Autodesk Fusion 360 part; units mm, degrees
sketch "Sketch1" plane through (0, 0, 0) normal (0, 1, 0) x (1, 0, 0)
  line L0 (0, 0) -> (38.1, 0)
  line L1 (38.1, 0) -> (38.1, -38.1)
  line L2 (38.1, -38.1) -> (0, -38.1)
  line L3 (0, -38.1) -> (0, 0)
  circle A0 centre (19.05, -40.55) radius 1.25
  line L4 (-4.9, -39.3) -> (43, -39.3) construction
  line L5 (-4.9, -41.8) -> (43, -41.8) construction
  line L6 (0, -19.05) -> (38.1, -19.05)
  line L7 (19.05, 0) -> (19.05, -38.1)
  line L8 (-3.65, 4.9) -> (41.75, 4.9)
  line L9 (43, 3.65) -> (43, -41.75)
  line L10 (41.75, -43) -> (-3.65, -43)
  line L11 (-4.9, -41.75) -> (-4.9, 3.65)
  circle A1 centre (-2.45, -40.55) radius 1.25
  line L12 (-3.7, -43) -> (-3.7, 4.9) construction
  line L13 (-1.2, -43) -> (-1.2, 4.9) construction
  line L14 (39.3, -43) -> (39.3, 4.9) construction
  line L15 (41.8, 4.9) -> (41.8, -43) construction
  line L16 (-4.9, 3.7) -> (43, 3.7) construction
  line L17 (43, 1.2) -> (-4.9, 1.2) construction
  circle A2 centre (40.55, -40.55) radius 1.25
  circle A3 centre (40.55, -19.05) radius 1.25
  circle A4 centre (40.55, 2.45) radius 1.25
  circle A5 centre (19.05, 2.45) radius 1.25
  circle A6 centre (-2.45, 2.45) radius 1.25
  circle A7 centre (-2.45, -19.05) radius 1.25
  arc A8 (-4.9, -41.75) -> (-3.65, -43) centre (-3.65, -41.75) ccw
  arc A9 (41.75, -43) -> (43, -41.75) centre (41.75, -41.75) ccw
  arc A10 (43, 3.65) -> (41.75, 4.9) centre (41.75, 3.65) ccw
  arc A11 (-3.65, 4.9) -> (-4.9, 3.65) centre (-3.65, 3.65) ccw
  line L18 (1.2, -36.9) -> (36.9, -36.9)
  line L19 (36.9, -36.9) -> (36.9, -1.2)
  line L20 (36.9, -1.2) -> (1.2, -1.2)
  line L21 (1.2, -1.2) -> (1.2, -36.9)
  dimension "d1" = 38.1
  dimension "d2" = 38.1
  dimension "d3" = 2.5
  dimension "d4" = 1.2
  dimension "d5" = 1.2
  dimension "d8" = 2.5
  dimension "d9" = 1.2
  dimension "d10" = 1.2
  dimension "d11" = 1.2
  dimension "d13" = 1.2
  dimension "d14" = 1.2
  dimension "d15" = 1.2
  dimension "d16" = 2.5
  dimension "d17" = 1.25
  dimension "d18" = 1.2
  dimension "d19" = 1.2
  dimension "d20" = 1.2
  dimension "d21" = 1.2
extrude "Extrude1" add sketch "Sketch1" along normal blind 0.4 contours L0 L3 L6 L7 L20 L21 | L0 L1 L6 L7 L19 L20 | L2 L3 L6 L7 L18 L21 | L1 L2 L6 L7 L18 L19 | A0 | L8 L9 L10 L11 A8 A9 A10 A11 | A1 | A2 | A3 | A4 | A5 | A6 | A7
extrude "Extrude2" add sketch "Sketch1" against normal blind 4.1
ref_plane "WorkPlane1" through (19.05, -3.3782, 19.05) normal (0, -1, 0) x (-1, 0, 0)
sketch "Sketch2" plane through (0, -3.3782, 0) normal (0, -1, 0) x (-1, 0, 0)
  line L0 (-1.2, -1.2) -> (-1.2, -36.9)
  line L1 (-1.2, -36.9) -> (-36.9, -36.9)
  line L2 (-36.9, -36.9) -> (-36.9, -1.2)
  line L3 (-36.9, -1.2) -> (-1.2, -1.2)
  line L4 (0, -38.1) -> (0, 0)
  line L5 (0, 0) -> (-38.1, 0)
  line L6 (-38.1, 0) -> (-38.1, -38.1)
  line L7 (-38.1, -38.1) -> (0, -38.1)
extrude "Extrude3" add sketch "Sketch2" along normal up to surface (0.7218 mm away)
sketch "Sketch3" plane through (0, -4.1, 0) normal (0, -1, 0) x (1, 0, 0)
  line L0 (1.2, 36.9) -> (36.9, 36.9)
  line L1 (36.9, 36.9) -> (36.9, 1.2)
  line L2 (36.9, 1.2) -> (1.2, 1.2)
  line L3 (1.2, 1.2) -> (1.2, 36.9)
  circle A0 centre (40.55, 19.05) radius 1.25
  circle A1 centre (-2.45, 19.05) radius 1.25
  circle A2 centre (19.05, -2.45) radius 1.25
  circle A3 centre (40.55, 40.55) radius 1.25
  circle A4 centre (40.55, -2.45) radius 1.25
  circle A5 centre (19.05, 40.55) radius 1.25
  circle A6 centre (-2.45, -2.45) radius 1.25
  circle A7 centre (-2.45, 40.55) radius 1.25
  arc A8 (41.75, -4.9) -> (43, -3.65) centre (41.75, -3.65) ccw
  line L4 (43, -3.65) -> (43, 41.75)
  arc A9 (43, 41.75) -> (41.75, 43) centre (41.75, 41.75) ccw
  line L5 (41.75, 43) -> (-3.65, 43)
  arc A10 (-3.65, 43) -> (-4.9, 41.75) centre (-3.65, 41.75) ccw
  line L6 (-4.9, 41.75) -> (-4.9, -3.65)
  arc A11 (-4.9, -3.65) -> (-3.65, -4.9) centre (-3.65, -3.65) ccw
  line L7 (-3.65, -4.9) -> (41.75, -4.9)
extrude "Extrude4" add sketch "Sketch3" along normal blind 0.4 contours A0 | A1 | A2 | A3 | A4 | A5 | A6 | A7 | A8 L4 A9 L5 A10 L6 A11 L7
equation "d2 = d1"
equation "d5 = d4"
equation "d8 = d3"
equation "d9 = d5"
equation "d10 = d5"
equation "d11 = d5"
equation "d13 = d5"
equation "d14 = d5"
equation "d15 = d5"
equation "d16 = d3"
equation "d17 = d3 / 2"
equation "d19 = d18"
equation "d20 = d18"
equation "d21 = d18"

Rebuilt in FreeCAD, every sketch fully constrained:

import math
import FreeCAD as App
import Part
import Sketcher
from FreeCAD import Vector
Q = App.Units.Quantity

doc = App.newDocument("Part")
body = doc.addObject("PartDesign::Body", "Body")

sketch1 = body.newObject("Sketcher::SketchObject", "Sketch")
sketch1.AttachmentSupport = (doc.getObject("XZ_Plane"), [""])
sketch1.MapMode = "FlatFace"
sketch1.addGeometry([
    Part.LineSegment(Vector(41.75, -4.9, 0), Vector(-3.65, -4.9, 0)),
    Part.ArcOfCircle(Part.Circle(Vector(-3.65, -3.65, 0), Vector(0, 0, 1), 1.25), math.radians(180), math.radians(270)),
    Part.LineSegment(Vector(-4.9, -3.65, 0), Vector(-4.9, 41.75, 0)),
    Part.ArcOfCircle(Part.Circle(Vector(-3.65, 41.75, 0), Vector(0, 0, 1), 1.25), math.radians(90), math.radians(180)),
    Part.LineSegment(Vector(-3.65, 43, 0), Vector(41.75, 43, 0)),
    Part.ArcOfCircle(Part.Circle(Vector(41.75, 41.75, 0), Vector(0, 0, 1), 1.25), math.radians(0), math.radians(90)),
    Part.LineSegment(Vector(43, 41.75, 0), Vector(43, -3.65, 0)),
    Part.ArcOfCircle(Part.Circle(Vector(41.75, -3.65, 0), Vector(0, 0, 1), 1.25), math.radians(-90), math.radians(0)),
    Part.LineSegment(Vector(1.2, 1.2, 0), Vector(36.9, 1.2, 0)),
    Part.LineSegment(Vector(36.9, 1.2, 0), Vector(36.9, 36.9, 0)),
    Part.LineSegment(Vector(36.9, 36.9, 0), Vector(1.2, 36.9, 0)),
    Part.LineSegment(Vector(1.2, 36.9, 0), Vector(1.2, 1.2, 0)),
], False)
sketch1.addConstraint([
    Sketcher.Constraint("Tangent", 0, 2, 1, 2),
    Sketcher.Constraint("Tangent", 1, 1, 2, 1),
    Sketcher.Constraint("Tangent", 2, 2, 3, 2),
    Sketcher.Constraint("Tangent", 3, 1, 4, 1),
    Sketcher.Constraint("Tangent", 4, 2, 5, 2),
    Sketcher.Constraint("Tangent", 5, 1, 6, 1),
    Sketcher.Constraint("Tangent", 6, 2, 7, 2),
    Sketcher.Constraint("Tangent", 7, 1, 0, 1),
    Sketcher.Constraint("Coincident", 8, 2, 9, 1),
    Sketcher.Constraint("Coincident", 9, 2, 10, 1),
    Sketcher.Constraint("Coincident", 10, 2, 11, 1),
    Sketcher.Constraint("Coincident", 11, 2, 8, 1),
    Sketcher.Constraint("Horizontal", 0),
    Sketcher.Constraint("Vertical", 2),
    Sketcher.Constraint("Horizontal", 4),
    Sketcher.Constraint("Vertical", 6),
    Sketcher.Constraint("Horizontal", 8),
    Sketcher.Constraint("Vertical", 9),
    Sketcher.Constraint("Horizontal", 10),
    Sketcher.Constraint("Vertical", 11),
    Sketcher.Constraint("Equal", 1, 3),
    Sketcher.Constraint("Equal", 3, 5),
    Sketcher.Constraint("Equal", 5, 7),
    Sketcher.Constraint("Equal", 4, 2),
    Sketcher.Constraint("Equal", 10, 9),
    Sketcher.Constraint("Radius", 1, Q("1.25 mm")),
    Sketcher.Constraint("DistanceY", -1, 1, 8, 2, Q("1.2 mm")),
    Sketcher.Constraint("DistanceX", -1, 1, 10, 2, Q("1.2 mm")),
    Sketcher.Constraint("DistanceX", 0, 2, 0, 1, Q("45.4 mm")),
    Sketcher.Constraint("DistanceX", 8, 1, 8, 2, Q("35.7 mm")),
    Sketcher.Constraint("DistanceY", -1, 1, 3, 1, Q("43 mm")),
    Sketcher.Constraint("DistanceX", -1, 1, 5, 1, Q("43 mm")),
])
pad1 = body.newObject("PartDesign::Pad", "Pad")
pad1.Profile = sketch1
pad1.Length = 0.4
pad1.Reversed = True

sketch2 = body.newObject("Sketcher::SketchObject", "Sketch001")
sketch2.AttachmentSupport = (doc.getObject("XZ_Plane"), [""])
sketch2.MapMode = "FlatFace"
sketch2.addGeometry([
    Part.LineSegment(Vector(41.75, -4.9, 0), Vector(-3.65, -4.9, 0)),
    Part.ArcOfCircle(Part.Circle(Vector(-3.65, -3.65, 0), Vector(0, 0, 1), 1.25), math.radians(180), math.radians(270)),
    Part.LineSegment(Vector(-4.9, -3.65, 0), Vector(-4.9, 41.75, 0)),
    Part.ArcOfCircle(Part.Circle(Vector(-3.65, 41.75, 0), Vector(0, 0, 1), 1.25), math.radians(90), math.radians(180)),
    Part.LineSegment(Vector(-3.65, 43, 0), Vector(41.75, 43, 0)),
    Part.ArcOfCircle(Part.Circle(Vector(41.75, 41.75, 0), Vector(0, 0, 1), 1.25), math.radians(0), math.radians(90)),
    Part.LineSegment(Vector(43, 41.75, 0), Vector(43, -3.65, 0)),
    Part.ArcOfCircle(Part.Circle(Vector(41.75, -3.65, 0), Vector(0, 0, 1), 1.25), math.radians(-90), math.radians(0)),
    Part.Circle(Vector(-2.45, 40.55, 0), Vector(0, 0, 1), 1.25),
    Part.Circle(Vector(19.05, 40.55, 0), Vector(0, 0, 1), 1.25),
    Part.Circle(Vector(40.55, 40.55, 0), Vector(0, 0, 1), 1.25),
    Part.Circle(Vector(-2.45, 19.05, 0), Vector(0, 0, 1), 1.25),
    Part.Circle(Vector(-2.45, -2.45, 0), Vector(0, 0, 1), 1.25),
    Part.LineSegment(Vector(0, 38.1, 0), Vector(0, 0, 0)),
    Part.LineSegment(Vector(0, 0, 0), Vector(38.1, 0, 0)),
    Part.LineSegment(Vector(38.1, 0, 0), Vector(38.1, 38.1, 0)),
    Part.LineSegment(Vector(38.1, 38.1, 0), Vector(0, 38.1, 0)),
    Part.Circle(Vector(40.55, 19.05, 0), Vector(0, 0, 1), 1.25),
    Part.Circle(Vector(19.05, -2.45, 0), Vector(0, 0, 1), 1.25),
    Part.Circle(Vector(40.55, -2.45, 0), Vector(0, 0, 1), 1.25),
], False)
sketch2.addConstraint([
    Sketcher.Constraint("Tangent", 0, 2, 1, 2),
    Sketcher.Constraint("Tangent", 1, 1, 2, 1),
    Sketcher.Constraint("Tangent", 2, 2, 3, 2),
    Sketcher.Constraint("Tangent", 3, 1, 4, 1),
    Sketcher.Constraint("Tangent", 4, 2, 5, 2),
    Sketcher.Constraint("Tangent", 5, 1, 6, 1),
    Sketcher.Constraint("Tangent", 6, 2, 7, 2),
    Sketcher.Constraint("Tangent", 7, 1, 0, 1),
    Sketcher.Constraint("Coincident", 13, 2, 14, 1),
    Sketcher.Constraint("Coincident", 14, 2, 15, 1),
    Sketcher.Constraint("Coincident", 15, 2, 16, 1),
    Sketcher.Constraint("Coincident", 16, 2, 13, 1),
    Sketcher.Constraint("Horizontal", 0),
    Sketcher.Constraint("Vertical", 2),
    Sketcher.Constraint("Horizontal", 4),
    Sketcher.Constraint("Vertical", 6),
    Sketcher.Constraint("Vertical", 13),
    Sketcher.Constraint("Horizontal", 14),
    Sketcher.Constraint("Vertical", 15),
    Sketcher.Constraint("Horizontal", 16),
    Sketcher.Constraint("Coincident", 13, 2, -1, 1),
    Sketcher.Constraint("Equal", 1, 3),
    Sketcher.Constraint("Equal", 3, 5),
    Sketcher.Constraint("Equal", 5, 7),
    Sketcher.Constraint("Equal", 7, 8),
    Sketcher.Constraint("Equal", 8, 9),
    Sketcher.Constraint("Equal", 9, 10),
    Sketcher.Constraint("Equal", 10, 11),
    Sketcher.Constraint("Equal", 11, 12),
    Sketcher.Constraint("Equal", 12, 17),
    Sketcher.Constraint("Equal", 17, 18),
    Sketcher.Constraint("Equal", 18, 19),
    Sketcher.Constraint("Horizontal", 8, 3, 9, 3),
    Sketcher.Constraint("Horizontal", 9, 3, 10, 3),
    Sketcher.Constraint("Horizontal", 11, 3, 17, 3),
    Sketcher.Constraint("Horizontal", 12, 3, 18, 3),
    Sketcher.Constraint("Horizontal", 18, 3, 19, 3),
    Sketcher.Constraint("Vertical", 8, 3, 11, 3),
    Sketcher.Constraint("Vertical", 11, 3, 12, 3),
    Sketcher.Constraint("Vertical", 10, 3, 17, 3),
    Sketcher.Constraint("Vertical", 9, 3, 18, 3),
    Sketcher.Constraint("Vertical", 17, 3, 19, 3),
    Sketcher.Constraint("Equal", 4, 2),
    Sketcher.Constraint("Equal", 16, 13),
    Sketcher.Constraint("Diameter", 8, Q("2.5 mm")),
    Sketcher.Constraint("DistanceX", 14, 1, 14, 2, Q("38.1 mm")),
    Sketcher.Constraint("DistanceX", 3, 3, 8, 3, Q("1.2 mm")),
    Sketcher.Constraint("DistanceY", 8, 3, 3, 3, Q("1.2 mm")),
    Sketcher.Constraint("DistanceX", 10, 3, 5, 3, Q("1.2 mm")),
    Sketcher.Constraint("DistanceY", 1, 3, 12, 3, Q("1.2 mm")),
    Sketcher.Constraint("DistanceX", 0, 2, 0, 1, Q("45.4 mm")),
    Sketcher.Constraint("DistanceY", -1, 1, 3, 1, Q("43 mm")),
    Sketcher.Constraint("DistanceX", -1, 1, 5, 1, Q("43 mm")),
    Sketcher.Constraint("DistanceX", 8, 3, 9, 3, Q("21.5 mm")),
    Sketcher.Constraint("DistanceY", 11, 3, 8, 3, Q("21.5 mm")),
])
pad2 = body.newObject("PartDesign::Pad", "Pad001")
pad2.Profile = sketch2
pad2.Length = 4.1

sketch3 = body.newObject("Sketcher::SketchObject", "Sketch002")
sketch3.AttachmentSupport = (doc.getObject("XZ_Plane"), [""])
sketch3.MapMode = "FlatFace"
sketch3.AttachmentOffset = App.Placement(Vector(0, 0, 3.3782), App.Rotation())
sketch3.addGeometry([
    Part.LineSegment(Vector(38.1, 38.1, 0), Vector(0, 38.1, 0)),
    Part.LineSegment(Vector(0, 38.1, 0), Vector(0, 0, 0)),
    Part.LineSegment(Vector(0, 0, 0), Vector(38.1, 0, 0)),
    Part.LineSegment(Vector(38.1, 0, 0), Vector(38.1, 38.1, 0)),
    Part.LineSegment(Vector(36.9, 1.2, 0), Vector(1.2, 1.2, 0)),
    Part.LineSegment(Vector(1.2, 1.2, 0), Vector(1.2, 36.9, 0)),
    Part.LineSegment(Vector(1.2, 36.9, 0), Vector(36.9, 36.9, 0)),
    Part.LineSegment(Vector(36.9, 36.9, 0), Vector(36.9, 1.2, 0)),
], False)
sketch3.addConstraint([
    Sketcher.Constraint("Coincident", 0, 2, 1, 1),
    Sketcher.Constraint("Coincident", 1, 2, 2, 1),
    Sketcher.Constraint("Coincident", 2, 2, 3, 1),
    Sketcher.Constraint("Coincident", 3, 2, 0, 1),
    Sketcher.Constraint("Coincident", 4, 2, 5, 1),
    Sketcher.Constraint("Coincident", 5, 2, 6, 1),
    Sketcher.Constraint("Coincident", 6, 2, 7, 1),
    Sketcher.Constraint("Coincident", 7, 2, 4, 1),
    Sketcher.Constraint("Horizontal", 0),
    Sketcher.Constraint("Vertical", 1),
    Sketcher.Constraint("Horizontal", 2),
    Sketcher.Constraint("Vertical", 3),
    Sketcher.Constraint("Horizontal", 4),
    Sketcher.Constraint("Vertical", 5),
    Sketcher.Constraint("Horizontal", 6),
    Sketcher.Constraint("Vertical", 7),
    Sketcher.Constraint("Coincident", 1, 2, -1, 1),
    Sketcher.Constraint("Equal", 2, 1),
    Sketcher.Constraint("Equal", 6, 5),
    Sketcher.Constraint("DistanceX", 0, 2, 0, 1, Q("38.1 mm")),
    Sketcher.Constraint("DistanceX", 4, 2, 4, 1, Q("35.7 mm")),
    Sketcher.Constraint("DistanceX", -1, 1, 4, 2, Q("1.2 mm")),
    Sketcher.Constraint("DistanceY", -1, 1, 4, 2, Q("1.2 mm")),
])
pad3 = body.newObject("PartDesign::Pad", "Pad002")
pad3.Profile = sketch3
pad3.Length = 0.7218

sketch4 = body.newObject("Sketcher::SketchObject", "Sketch003")
sketch4.AttachmentSupport = (doc.getObject("XZ_Plane"), [""])
sketch4.MapMode = "FlatFace"
sketch4.AttachmentOffset = App.Placement(Vector(0, 0, 4.1), App.Rotation())
sketch4.addGeometry([
    Part.LineSegment(Vector(-3.65, -4.9, 0), Vector(41.75, -4.9, 0)),
    Part.ArcOfCircle(Part.Circle(Vector(41.75, -3.65, 0), Vector(0, 0, 1), 1.25), math.radians(-90), math.radians(0)),
    Part.LineSegment(Vector(43, -3.65, 0), Vector(43, 41.75, 0)),
    Part.ArcOfCircle(Part.Circle(Vector(41.75, 41.75, 0), Vector(0, 0, 1), 1.25), math.radians(0), math.radians(90)),
    Part.LineSegment(Vector(41.75, 43, 0), Vector(-3.65, 43, 0)),
    Part.ArcOfCircle(Part.Circle(Vector(-3.65, 41.75, 0), Vector(0, 0, 1), 1.25), math.radians(90), math.radians(180)),
    Part.LineSegment(Vector(-4.9, 41.75, 0), Vector(-4.9, -3.65, 0)),
    Part.ArcOfCircle(Part.Circle(Vector(-3.65, -3.65, 0), Vector(0, 0, 1), 1.25), math.radians(180), math.radians(270)),
    Part.LineSegment(Vector(1.2, 1.2, 0), Vector(1.2, 36.9, 0)),
    Part.LineSegment(Vector(1.2, 36.9, 0), Vector(36.9, 36.9, 0)),
    Part.LineSegment(Vector(36.9, 36.9, 0), Vector(36.9, 1.2, 0)),
    Part.LineSegment(Vector(36.9, 1.2, 0), Vector(1.2, 1.2, 0)),
], False)
sketch4.addConstraint([
    Sketcher.Constraint("Tangent", 0, 2, 1, 1),
    Sketcher.Constraint("Tangent", 1, 2, 2, 1),
    Sketcher.Constraint("Tangent", 2, 2, 3, 1),
    Sketcher.Constraint("Tangent", 3, 2, 4, 1),
    Sketcher.Constraint("Tangent", 4, 2, 5, 1),
    Sketcher.Constraint("Tangent", 5, 2, 6, 1),
    Sketcher.Constraint("Tangent", 6, 2, 7, 1),
    Sketcher.Constraint("Tangent", 7, 2, 0, 1),
    Sketcher.Constraint("Coincident", 8, 2, 9, 1),
    Sketcher.Constraint("Coincident", 9, 2, 10, 1),
    Sketcher.Constraint("Coincident", 10, 2, 11, 1),
    Sketcher.Constraint("Coincident", 11, 2, 8, 1),
    Sketcher.Constraint("Horizontal", 0),
    Sketcher.Constraint("Vertical", 2),
    Sketcher.Constraint("Horizontal", 4),
    Sketcher.Constraint("Vertical", 6),
    Sketcher.Constraint("Vertical", 8),
    Sketcher.Constraint("Horizontal", 9),
    Sketcher.Constraint("Vertical", 10),
    Sketcher.Constraint("Horizontal", 11),
    Sketcher.Constraint("Equal", 1, 3),
    Sketcher.Constraint("Equal", 3, 5),
    Sketcher.Constraint("Equal", 5, 7),
    Sketcher.Constraint("Equal", 4, 2),
    Sketcher.Constraint("Equal", 11, 8),
    Sketcher.Constraint("Radius", 1, Q("1.25 mm")),
    Sketcher.Constraint("DistanceX", 0, 1, 0, 2, Q("45.4 mm")),
    Sketcher.Constraint("DistanceX", 9, 1, 9, 2, Q("35.7 mm")),
    Sketcher.Constraint("DistanceX", -1, 1, 1, 2, Q("43 mm")),
    Sketcher.Constraint("DistanceY", -1, 1, 3, 2, Q("43 mm")),
    Sketcher.Constraint("DistanceX", -1, 1, 8, 2, Q("1.2 mm")),
    Sketcher.Constraint("DistanceY", -1, 1, 8, 2, Q("36.9 mm")),
])
pad4 = body.newObject("PartDesign::Pad", "Pad003")
pad4.Profile = sketch4
pad4.Length = 0.4

doc.recompute()
